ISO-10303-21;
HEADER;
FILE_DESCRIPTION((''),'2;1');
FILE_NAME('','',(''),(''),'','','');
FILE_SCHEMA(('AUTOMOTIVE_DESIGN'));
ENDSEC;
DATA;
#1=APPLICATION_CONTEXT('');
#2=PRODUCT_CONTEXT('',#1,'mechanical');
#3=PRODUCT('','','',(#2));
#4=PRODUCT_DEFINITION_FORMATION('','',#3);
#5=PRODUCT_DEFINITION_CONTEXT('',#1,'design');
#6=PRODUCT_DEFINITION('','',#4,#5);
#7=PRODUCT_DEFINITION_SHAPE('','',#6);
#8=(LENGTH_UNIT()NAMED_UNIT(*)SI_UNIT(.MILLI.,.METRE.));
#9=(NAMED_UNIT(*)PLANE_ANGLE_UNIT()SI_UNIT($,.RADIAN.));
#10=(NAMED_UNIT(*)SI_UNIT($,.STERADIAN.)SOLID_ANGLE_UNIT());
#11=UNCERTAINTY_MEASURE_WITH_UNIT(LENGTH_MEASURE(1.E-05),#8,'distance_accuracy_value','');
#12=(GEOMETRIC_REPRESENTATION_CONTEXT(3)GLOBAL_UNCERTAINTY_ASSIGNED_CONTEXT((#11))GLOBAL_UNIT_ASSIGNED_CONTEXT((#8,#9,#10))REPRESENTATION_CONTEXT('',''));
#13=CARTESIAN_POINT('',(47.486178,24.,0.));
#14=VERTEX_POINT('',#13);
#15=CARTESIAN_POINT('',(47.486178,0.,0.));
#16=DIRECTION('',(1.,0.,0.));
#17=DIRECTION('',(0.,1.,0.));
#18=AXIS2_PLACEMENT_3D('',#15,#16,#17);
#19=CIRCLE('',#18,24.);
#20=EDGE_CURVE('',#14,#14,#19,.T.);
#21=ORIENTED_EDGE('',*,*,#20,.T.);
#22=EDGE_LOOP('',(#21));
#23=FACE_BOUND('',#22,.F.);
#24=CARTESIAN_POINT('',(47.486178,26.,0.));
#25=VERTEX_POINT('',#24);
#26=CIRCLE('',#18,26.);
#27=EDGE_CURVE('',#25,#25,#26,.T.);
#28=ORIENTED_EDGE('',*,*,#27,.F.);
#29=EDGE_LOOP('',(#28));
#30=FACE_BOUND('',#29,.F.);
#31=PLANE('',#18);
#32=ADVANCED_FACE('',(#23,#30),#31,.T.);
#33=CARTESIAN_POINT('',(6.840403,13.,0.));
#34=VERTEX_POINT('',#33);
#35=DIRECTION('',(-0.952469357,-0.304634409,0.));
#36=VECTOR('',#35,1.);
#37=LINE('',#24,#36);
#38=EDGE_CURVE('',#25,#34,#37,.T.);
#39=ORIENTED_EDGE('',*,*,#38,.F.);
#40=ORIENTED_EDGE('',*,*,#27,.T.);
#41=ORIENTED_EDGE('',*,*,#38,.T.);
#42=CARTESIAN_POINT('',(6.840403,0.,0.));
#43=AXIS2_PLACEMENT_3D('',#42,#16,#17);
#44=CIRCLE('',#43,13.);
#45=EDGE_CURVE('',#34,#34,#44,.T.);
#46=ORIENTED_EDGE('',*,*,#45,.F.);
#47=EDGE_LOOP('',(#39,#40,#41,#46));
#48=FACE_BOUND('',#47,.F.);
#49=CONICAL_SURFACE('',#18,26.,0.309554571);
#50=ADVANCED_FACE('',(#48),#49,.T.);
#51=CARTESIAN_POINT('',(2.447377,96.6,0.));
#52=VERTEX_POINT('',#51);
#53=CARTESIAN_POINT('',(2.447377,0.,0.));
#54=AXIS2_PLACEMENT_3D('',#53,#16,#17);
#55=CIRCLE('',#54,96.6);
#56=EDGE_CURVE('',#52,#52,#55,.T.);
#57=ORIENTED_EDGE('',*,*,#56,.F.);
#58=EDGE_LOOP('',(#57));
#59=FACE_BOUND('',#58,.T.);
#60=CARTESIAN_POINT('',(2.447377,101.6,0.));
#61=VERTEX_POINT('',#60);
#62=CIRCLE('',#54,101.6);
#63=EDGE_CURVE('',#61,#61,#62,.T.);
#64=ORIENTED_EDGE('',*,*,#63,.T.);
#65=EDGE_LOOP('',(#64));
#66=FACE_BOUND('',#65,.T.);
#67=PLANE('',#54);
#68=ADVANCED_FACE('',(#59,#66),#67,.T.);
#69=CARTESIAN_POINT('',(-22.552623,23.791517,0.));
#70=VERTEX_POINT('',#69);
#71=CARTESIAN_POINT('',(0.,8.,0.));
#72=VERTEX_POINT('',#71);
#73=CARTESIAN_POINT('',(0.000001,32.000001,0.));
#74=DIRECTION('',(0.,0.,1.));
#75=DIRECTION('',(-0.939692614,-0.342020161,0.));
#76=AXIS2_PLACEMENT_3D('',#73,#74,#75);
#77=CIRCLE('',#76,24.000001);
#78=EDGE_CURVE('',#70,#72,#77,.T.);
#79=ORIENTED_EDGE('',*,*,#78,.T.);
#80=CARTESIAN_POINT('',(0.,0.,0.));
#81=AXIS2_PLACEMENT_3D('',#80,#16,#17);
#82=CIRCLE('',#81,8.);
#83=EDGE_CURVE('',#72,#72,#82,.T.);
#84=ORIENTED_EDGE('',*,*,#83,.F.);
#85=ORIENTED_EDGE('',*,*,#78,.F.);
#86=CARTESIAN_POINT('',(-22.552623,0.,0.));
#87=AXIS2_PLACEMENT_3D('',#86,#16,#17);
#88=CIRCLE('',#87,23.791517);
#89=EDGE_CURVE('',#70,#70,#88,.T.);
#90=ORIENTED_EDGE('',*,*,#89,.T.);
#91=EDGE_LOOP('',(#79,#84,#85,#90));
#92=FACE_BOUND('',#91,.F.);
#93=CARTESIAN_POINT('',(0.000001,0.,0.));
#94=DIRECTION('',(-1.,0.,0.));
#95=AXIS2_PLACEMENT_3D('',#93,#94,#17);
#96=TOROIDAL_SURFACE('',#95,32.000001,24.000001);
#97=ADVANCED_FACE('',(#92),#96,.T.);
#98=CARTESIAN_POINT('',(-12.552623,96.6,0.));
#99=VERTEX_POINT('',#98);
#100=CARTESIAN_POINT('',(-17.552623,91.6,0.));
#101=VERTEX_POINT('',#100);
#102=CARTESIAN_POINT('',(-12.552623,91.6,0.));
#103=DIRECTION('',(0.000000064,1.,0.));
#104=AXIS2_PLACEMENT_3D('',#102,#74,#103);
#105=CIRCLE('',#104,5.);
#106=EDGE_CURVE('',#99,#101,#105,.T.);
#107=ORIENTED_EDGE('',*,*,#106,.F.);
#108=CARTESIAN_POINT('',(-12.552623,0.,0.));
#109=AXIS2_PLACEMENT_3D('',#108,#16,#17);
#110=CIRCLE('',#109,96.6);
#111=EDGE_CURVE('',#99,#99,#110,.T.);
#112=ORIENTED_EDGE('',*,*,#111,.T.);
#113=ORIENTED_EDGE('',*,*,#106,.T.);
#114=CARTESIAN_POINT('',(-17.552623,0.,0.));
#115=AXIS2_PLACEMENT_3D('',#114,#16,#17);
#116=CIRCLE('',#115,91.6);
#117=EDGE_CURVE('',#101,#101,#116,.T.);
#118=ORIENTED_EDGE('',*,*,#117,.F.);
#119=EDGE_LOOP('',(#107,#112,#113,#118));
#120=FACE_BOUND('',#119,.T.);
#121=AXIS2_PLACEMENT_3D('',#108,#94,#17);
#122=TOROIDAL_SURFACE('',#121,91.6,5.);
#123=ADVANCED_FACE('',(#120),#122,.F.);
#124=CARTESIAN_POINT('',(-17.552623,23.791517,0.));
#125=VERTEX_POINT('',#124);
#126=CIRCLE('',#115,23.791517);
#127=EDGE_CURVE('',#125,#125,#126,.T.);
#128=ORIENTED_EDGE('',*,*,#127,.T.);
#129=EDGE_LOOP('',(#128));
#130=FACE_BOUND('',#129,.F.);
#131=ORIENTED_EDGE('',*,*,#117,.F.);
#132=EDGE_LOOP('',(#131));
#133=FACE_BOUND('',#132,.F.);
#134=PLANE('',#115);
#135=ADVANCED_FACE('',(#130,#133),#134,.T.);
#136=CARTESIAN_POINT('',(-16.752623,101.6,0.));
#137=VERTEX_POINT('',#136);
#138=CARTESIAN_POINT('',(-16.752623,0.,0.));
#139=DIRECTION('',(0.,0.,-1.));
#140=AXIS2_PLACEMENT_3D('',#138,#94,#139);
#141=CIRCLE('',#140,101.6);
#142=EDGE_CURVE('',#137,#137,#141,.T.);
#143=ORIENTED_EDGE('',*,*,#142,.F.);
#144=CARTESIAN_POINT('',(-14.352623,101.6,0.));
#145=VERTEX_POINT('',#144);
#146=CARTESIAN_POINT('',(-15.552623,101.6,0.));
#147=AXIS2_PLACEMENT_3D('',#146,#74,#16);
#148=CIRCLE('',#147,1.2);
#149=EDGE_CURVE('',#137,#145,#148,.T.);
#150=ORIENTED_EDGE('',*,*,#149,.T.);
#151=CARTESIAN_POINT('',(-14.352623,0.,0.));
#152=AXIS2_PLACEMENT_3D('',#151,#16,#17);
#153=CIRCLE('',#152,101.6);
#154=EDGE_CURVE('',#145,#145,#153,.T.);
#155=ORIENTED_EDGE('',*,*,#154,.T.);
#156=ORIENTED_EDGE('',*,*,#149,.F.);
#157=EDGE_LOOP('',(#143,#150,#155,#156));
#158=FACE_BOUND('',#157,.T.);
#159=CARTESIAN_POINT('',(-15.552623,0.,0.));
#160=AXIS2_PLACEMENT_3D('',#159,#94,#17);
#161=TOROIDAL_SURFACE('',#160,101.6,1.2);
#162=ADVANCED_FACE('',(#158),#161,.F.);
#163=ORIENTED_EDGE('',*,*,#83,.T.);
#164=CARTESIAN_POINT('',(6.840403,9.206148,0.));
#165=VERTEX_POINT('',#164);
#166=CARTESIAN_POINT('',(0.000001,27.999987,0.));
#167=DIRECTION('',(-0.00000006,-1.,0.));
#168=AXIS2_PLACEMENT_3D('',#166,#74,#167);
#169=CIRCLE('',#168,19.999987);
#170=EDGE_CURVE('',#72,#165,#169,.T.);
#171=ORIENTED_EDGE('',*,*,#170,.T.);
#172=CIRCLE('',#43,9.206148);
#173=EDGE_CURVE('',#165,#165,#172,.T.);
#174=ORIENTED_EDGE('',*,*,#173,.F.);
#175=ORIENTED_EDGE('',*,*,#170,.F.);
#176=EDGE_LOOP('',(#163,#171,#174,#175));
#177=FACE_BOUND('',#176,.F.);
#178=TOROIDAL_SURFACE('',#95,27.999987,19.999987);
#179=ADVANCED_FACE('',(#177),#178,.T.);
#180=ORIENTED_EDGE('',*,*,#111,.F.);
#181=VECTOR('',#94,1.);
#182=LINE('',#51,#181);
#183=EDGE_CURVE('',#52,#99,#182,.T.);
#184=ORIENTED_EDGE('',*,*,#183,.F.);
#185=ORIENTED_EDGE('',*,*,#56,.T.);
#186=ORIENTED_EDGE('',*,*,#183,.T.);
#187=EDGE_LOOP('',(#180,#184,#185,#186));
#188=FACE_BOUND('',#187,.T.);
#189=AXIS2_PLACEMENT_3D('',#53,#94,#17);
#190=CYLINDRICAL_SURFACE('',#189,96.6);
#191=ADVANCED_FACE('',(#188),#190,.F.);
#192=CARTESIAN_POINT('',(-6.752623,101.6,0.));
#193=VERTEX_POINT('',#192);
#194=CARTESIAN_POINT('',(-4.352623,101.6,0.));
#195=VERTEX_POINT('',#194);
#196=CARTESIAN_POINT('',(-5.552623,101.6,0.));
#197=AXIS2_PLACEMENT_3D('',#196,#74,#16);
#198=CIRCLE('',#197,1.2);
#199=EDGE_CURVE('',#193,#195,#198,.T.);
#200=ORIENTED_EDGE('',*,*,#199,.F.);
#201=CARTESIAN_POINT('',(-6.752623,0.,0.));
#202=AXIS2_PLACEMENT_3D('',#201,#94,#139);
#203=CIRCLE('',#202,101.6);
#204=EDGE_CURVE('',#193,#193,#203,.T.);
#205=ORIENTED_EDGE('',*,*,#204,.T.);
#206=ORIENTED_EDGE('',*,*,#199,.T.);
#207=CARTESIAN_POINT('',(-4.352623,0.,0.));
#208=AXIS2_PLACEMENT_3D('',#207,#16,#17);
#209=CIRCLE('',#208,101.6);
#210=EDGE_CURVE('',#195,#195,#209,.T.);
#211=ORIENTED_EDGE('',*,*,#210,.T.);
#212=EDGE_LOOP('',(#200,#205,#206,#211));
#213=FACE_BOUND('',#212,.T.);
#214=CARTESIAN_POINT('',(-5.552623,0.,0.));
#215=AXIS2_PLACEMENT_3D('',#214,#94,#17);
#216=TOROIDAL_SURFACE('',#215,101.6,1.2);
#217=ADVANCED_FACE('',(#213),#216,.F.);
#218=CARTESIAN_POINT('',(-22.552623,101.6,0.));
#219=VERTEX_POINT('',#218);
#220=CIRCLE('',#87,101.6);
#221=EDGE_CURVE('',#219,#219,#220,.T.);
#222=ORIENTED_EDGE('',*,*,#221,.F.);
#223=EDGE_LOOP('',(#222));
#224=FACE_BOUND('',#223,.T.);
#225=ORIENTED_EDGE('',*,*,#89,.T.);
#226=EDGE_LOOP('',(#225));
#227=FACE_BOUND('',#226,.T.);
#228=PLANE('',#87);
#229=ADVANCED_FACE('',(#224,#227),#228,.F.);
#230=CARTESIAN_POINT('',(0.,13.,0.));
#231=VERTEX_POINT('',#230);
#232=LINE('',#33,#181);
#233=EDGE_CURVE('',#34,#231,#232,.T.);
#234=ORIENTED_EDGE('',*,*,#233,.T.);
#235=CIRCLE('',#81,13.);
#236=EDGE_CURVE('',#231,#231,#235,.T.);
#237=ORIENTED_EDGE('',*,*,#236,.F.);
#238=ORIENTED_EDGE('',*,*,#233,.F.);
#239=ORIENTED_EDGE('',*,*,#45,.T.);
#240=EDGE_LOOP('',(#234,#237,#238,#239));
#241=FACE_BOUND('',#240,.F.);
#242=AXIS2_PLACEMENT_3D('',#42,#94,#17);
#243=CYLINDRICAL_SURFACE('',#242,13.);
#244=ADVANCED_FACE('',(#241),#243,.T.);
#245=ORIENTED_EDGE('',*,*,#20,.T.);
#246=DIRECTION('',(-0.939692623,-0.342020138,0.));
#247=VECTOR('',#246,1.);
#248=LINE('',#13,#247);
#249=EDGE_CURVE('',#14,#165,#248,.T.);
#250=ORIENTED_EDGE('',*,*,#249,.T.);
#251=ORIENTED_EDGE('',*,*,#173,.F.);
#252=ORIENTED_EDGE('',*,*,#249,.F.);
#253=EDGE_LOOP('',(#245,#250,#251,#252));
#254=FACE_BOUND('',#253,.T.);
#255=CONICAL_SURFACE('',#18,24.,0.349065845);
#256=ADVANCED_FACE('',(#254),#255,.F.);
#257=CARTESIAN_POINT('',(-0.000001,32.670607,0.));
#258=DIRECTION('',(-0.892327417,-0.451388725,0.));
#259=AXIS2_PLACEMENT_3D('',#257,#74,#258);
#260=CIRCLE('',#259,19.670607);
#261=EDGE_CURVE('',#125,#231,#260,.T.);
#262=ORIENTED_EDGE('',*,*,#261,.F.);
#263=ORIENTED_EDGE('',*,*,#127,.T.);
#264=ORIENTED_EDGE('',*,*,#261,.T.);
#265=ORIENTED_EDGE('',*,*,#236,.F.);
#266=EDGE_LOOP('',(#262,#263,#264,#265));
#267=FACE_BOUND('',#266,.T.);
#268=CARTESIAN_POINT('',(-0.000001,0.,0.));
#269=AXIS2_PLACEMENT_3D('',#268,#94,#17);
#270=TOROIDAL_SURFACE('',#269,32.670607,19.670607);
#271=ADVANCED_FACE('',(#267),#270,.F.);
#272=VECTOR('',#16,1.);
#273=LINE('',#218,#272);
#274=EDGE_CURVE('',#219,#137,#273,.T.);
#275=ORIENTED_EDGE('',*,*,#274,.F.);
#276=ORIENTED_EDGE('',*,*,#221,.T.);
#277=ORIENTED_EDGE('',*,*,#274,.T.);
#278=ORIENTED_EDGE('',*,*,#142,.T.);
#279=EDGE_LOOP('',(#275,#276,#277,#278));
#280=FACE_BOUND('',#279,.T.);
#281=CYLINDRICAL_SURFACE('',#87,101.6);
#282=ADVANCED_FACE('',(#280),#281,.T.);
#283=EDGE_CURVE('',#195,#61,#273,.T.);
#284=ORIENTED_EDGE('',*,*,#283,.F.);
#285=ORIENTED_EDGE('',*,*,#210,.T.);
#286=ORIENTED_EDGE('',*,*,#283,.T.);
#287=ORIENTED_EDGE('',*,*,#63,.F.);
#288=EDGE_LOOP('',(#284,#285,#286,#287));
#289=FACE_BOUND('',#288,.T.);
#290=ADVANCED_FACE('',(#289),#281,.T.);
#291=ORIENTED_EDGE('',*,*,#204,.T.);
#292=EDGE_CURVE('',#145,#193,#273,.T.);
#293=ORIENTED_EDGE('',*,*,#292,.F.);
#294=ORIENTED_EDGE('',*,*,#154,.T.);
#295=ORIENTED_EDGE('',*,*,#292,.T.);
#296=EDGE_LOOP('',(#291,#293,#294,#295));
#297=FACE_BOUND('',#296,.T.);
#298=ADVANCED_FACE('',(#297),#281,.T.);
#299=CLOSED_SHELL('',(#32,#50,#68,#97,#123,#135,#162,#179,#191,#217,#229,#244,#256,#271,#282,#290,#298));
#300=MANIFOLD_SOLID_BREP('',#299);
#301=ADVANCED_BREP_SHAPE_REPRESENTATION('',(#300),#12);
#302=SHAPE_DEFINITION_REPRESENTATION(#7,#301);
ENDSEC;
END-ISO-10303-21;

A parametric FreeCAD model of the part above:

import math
import FreeCAD as App
import Part
import Sketcher

V = App.Vector
Q = App.Units.Quantity

doc = App.newDocument("Part")
params = doc.addObject("Spreadsheet::Sheet", "Params")
for row, (alias, value) in enumerate([
    ("sketch1_radius", "5 mm"),
    ("sketch1_radius2", "24.000001 mm"),
    ("sketch1_width", "15 mm"),
    ("sketch1_width2", "25 mm"),
    ("sketch1_height", "2 mm"),
    ("revolution_angle", "360 deg"),
    ("sketch2_diameter", "2.4 mm"),
    ("groove_angle", "360 deg"),
], start=1):
    params.set(f"A{row}", alias)
    params.set(f"B{row}", "=" + value)
    params.setAlias(f"B{row}", alias)

body = doc.addObject("PartDesign::Body", "Body")

# Sketch on XY plane
sketch1 = body.newObject("Sketcher::SketchObject", "Sketch")
sketch1.AttachmentSupport = (doc.getObject("XY_Plane"), [""])
sketch1.MapMode = "FlatFace"
sketch1.addGeometry([
    Part.LineSegment(V(6.8, 9.2, 0), V(47.5, 24, 0)),  # 0
    Part.LineSegment(V(47.5, 24, 0), V(47.5, 26, 0)),  # 1
    Part.LineSegment(V(47.5, 26, 0), V(6.8, 13, 0)),  # 2
    Part.LineSegment(V(6.8, 13, 0), V(0, 13, 0)),  # 3
    Part.ArcOfCircle(Part.Circle(V(0, 32.7, 0), V(0, 0, 1), 19.7), math.radians(-153), math.radians(-90)),  # 4
    Part.LineSegment(V(-17.6, 23.8, 0), V(-17.6, 91.6, 0)),  # 5
    Part.ArcOfCircle(Part.Circle(V(-12.6, 91.6, 0), V(0, 0, 1), 5), math.radians(90), math.radians(180)),  # 6
    Part.LineSegment(V(-12.6, 96.6, 0), V(2.4, 96.6, 0)),  # 7
    Part.LineSegment(V(2.4, 96.6, 0), V(2.4, 101.6, 0)),  # 8
    Part.LineSegment(V(2.4, 101.6, 0), V(-22.6, 101.6, 0)),  # 9
    Part.LineSegment(V(-22.6, 101.6, 0), V(-22.6, 23.8, 0)),  # 10
    Part.ArcOfCircle(Part.Circle(V(0, 32, 0), V(0, 0, 1), 24), math.radians(-160), math.radians(-90)),  # 11
    Part.ArcOfCircle(Part.Circle(V(0, 28, 0), V(0, 0, 1), 20), math.radians(-90), math.radians(-70)),  # 12
], False)
sketch1.addConstraint([
    Sketcher.Constraint("Coincident", 0, 2, 1, 1),
    Sketcher.Constraint("Coincident", 1, 2, 2, 1),
    Sketcher.Constraint("Coincident", 2, 2, 3, 1),
    Sketcher.Constraint("Tangent", 3, 2, 4, 2),
    Sketcher.Constraint("Coincident", 4, 1, 5, 1),
    Sketcher.Constraint("Tangent", 5, 2, 6, 2),
    Sketcher.Constraint("Tangent", 6, 1, 7, 1),
    Sketcher.Constraint("Coincident", 7, 2, 8, 1),
    Sketcher.Constraint("Coincident", 8, 2, 9, 1),
    Sketcher.Constraint("Coincident", 9, 2, 10, 1),
    Sketcher.Constraint("Coincident", 10, 2, 11, 1),
    Sketcher.Constraint("Tangent", 11, 2, 12, 1),
    Sketcher.Constraint("Tangent", 12, 2, 0, 1),
    Sketcher.Constraint("Vertical", 1),
    Sketcher.Constraint("Horizontal", 3),
    Sketcher.Constraint("Vertical", 5),
    Sketcher.Constraint("Horizontal", 7),
    Sketcher.Constraint("Vertical", 8),
    Sketcher.Constraint("Horizontal", 9),
    Sketcher.Constraint("Vertical", 10),
    Sketcher.Constraint("PointOnObject", 4, 3, -2),
    Sketcher.Constraint("PointOnObject", 11, 3, -2),
    Sketcher.Constraint("PointOnObject", 12, 3, -2),
    Sketcher.Constraint("Horizontal", 4, 1, 10, 2),
    Sketcher.Constraint("Vertical", 2, 2, 12, 2),
    Sketcher.Constraint("Radius", 6, Q("5 mm")),
    Sketcher.Constraint("Radius", 11, Q("24.000001 mm")),
    Sketcher.Constraint("DistanceX", 7, 1, 7, 2, Q("15 mm")),
    Sketcher.Constraint("DistanceX", 9, 2, 9, 1, Q("25 mm")),
    Sketcher.Constraint("DistanceY", 1, 1, 1, 2, Q("2 mm")),
    Sketcher.Constraint("DistanceY", 8, 1, 8, 2, Q("5 mm")),
    Sketcher.Constraint("Angle", 0, Q("20 deg")),
    Sketcher.Constraint("DistanceY", -1, 1, 11, 3, Q("32.000001 mm")),
    Sketcher.Constraint("DistanceY", -1, 1, 0, 2, Q("24 mm")),
    Sketcher.Constraint("DistanceY", -1, 1, 2, 2, Q("13 mm")),
    Sketcher.Constraint("DistanceY", -1, 1, 6, 3, Q("91.6 mm")),
    Sketcher.Constraint("Radius", 4, Q("19.670607 mm")),
    Sketcher.Constraint("Radius", 12, Q("19.999987 mm")),
])
sketch1.setExpression("Constraints[25]", "Params.sketch1_radius")
sketch1.setExpression("Constraints[26]", "Params.sketch1_radius2")
sketch1.setExpression("Constraints[27]", "Params.sketch1_width")
sketch1.setExpression("Constraints[28]", "Params.sketch1_width2")
sketch1.setExpression("Constraints[29]", "Params.sketch1_height")
revolution = body.newObject("PartDesign::Revolution", "Revolution")
revolution.Profile = sketch1
revolution.ReferenceAxis = (sketch1, ["H_Axis"])
revolution.setExpression("Angle", "Params.revolution_angle")

# Sketch on XY plane
sketch2 = body.newObject("Sketcher::SketchObject", "Sketch001")
sketch2.AttachmentSupport = (doc.getObject("XY_Plane"), [""])
sketch2.MapMode = "FlatFace"
sketch2.addGeometry([
    Part.Circle(V(-15.6, 101.6, 0), V(0, 0, 1), 1.2),
    Part.Circle(V(-5.6, 101.6, 0), V(0, 0, 1), 1.2),
], False)
sketch2.addConstraint([
    Sketcher.Constraint("Equal", 0, 1),
    Sketcher.Constraint("Horizontal", 0, 3, 1, 3),
    Sketcher.Constraint("Diameter", 0, Q("2.4 mm")),
    Sketcher.Constraint("DistanceX", 0, 3, 1, 3, Q("10 mm")),
    Sketcher.Constraint("DistanceY", -1, 1, 0, 3, Q("101.6 mm")),
    Sketcher.Constraint("DistanceX", 0, 3, -1, 1, Q("15.552623 mm")),
])
sketch2.setExpression("Constraints[2]", "Params.sketch2_diameter")
groove = body.newObject("PartDesign::Groove", "Groove")
groove.Profile = sketch2
groove.ReferenceAxis = (sketch2, ["H_Axis"])
groove.setExpression("Angle", "Params.groove_angle")

doc.recompute()
